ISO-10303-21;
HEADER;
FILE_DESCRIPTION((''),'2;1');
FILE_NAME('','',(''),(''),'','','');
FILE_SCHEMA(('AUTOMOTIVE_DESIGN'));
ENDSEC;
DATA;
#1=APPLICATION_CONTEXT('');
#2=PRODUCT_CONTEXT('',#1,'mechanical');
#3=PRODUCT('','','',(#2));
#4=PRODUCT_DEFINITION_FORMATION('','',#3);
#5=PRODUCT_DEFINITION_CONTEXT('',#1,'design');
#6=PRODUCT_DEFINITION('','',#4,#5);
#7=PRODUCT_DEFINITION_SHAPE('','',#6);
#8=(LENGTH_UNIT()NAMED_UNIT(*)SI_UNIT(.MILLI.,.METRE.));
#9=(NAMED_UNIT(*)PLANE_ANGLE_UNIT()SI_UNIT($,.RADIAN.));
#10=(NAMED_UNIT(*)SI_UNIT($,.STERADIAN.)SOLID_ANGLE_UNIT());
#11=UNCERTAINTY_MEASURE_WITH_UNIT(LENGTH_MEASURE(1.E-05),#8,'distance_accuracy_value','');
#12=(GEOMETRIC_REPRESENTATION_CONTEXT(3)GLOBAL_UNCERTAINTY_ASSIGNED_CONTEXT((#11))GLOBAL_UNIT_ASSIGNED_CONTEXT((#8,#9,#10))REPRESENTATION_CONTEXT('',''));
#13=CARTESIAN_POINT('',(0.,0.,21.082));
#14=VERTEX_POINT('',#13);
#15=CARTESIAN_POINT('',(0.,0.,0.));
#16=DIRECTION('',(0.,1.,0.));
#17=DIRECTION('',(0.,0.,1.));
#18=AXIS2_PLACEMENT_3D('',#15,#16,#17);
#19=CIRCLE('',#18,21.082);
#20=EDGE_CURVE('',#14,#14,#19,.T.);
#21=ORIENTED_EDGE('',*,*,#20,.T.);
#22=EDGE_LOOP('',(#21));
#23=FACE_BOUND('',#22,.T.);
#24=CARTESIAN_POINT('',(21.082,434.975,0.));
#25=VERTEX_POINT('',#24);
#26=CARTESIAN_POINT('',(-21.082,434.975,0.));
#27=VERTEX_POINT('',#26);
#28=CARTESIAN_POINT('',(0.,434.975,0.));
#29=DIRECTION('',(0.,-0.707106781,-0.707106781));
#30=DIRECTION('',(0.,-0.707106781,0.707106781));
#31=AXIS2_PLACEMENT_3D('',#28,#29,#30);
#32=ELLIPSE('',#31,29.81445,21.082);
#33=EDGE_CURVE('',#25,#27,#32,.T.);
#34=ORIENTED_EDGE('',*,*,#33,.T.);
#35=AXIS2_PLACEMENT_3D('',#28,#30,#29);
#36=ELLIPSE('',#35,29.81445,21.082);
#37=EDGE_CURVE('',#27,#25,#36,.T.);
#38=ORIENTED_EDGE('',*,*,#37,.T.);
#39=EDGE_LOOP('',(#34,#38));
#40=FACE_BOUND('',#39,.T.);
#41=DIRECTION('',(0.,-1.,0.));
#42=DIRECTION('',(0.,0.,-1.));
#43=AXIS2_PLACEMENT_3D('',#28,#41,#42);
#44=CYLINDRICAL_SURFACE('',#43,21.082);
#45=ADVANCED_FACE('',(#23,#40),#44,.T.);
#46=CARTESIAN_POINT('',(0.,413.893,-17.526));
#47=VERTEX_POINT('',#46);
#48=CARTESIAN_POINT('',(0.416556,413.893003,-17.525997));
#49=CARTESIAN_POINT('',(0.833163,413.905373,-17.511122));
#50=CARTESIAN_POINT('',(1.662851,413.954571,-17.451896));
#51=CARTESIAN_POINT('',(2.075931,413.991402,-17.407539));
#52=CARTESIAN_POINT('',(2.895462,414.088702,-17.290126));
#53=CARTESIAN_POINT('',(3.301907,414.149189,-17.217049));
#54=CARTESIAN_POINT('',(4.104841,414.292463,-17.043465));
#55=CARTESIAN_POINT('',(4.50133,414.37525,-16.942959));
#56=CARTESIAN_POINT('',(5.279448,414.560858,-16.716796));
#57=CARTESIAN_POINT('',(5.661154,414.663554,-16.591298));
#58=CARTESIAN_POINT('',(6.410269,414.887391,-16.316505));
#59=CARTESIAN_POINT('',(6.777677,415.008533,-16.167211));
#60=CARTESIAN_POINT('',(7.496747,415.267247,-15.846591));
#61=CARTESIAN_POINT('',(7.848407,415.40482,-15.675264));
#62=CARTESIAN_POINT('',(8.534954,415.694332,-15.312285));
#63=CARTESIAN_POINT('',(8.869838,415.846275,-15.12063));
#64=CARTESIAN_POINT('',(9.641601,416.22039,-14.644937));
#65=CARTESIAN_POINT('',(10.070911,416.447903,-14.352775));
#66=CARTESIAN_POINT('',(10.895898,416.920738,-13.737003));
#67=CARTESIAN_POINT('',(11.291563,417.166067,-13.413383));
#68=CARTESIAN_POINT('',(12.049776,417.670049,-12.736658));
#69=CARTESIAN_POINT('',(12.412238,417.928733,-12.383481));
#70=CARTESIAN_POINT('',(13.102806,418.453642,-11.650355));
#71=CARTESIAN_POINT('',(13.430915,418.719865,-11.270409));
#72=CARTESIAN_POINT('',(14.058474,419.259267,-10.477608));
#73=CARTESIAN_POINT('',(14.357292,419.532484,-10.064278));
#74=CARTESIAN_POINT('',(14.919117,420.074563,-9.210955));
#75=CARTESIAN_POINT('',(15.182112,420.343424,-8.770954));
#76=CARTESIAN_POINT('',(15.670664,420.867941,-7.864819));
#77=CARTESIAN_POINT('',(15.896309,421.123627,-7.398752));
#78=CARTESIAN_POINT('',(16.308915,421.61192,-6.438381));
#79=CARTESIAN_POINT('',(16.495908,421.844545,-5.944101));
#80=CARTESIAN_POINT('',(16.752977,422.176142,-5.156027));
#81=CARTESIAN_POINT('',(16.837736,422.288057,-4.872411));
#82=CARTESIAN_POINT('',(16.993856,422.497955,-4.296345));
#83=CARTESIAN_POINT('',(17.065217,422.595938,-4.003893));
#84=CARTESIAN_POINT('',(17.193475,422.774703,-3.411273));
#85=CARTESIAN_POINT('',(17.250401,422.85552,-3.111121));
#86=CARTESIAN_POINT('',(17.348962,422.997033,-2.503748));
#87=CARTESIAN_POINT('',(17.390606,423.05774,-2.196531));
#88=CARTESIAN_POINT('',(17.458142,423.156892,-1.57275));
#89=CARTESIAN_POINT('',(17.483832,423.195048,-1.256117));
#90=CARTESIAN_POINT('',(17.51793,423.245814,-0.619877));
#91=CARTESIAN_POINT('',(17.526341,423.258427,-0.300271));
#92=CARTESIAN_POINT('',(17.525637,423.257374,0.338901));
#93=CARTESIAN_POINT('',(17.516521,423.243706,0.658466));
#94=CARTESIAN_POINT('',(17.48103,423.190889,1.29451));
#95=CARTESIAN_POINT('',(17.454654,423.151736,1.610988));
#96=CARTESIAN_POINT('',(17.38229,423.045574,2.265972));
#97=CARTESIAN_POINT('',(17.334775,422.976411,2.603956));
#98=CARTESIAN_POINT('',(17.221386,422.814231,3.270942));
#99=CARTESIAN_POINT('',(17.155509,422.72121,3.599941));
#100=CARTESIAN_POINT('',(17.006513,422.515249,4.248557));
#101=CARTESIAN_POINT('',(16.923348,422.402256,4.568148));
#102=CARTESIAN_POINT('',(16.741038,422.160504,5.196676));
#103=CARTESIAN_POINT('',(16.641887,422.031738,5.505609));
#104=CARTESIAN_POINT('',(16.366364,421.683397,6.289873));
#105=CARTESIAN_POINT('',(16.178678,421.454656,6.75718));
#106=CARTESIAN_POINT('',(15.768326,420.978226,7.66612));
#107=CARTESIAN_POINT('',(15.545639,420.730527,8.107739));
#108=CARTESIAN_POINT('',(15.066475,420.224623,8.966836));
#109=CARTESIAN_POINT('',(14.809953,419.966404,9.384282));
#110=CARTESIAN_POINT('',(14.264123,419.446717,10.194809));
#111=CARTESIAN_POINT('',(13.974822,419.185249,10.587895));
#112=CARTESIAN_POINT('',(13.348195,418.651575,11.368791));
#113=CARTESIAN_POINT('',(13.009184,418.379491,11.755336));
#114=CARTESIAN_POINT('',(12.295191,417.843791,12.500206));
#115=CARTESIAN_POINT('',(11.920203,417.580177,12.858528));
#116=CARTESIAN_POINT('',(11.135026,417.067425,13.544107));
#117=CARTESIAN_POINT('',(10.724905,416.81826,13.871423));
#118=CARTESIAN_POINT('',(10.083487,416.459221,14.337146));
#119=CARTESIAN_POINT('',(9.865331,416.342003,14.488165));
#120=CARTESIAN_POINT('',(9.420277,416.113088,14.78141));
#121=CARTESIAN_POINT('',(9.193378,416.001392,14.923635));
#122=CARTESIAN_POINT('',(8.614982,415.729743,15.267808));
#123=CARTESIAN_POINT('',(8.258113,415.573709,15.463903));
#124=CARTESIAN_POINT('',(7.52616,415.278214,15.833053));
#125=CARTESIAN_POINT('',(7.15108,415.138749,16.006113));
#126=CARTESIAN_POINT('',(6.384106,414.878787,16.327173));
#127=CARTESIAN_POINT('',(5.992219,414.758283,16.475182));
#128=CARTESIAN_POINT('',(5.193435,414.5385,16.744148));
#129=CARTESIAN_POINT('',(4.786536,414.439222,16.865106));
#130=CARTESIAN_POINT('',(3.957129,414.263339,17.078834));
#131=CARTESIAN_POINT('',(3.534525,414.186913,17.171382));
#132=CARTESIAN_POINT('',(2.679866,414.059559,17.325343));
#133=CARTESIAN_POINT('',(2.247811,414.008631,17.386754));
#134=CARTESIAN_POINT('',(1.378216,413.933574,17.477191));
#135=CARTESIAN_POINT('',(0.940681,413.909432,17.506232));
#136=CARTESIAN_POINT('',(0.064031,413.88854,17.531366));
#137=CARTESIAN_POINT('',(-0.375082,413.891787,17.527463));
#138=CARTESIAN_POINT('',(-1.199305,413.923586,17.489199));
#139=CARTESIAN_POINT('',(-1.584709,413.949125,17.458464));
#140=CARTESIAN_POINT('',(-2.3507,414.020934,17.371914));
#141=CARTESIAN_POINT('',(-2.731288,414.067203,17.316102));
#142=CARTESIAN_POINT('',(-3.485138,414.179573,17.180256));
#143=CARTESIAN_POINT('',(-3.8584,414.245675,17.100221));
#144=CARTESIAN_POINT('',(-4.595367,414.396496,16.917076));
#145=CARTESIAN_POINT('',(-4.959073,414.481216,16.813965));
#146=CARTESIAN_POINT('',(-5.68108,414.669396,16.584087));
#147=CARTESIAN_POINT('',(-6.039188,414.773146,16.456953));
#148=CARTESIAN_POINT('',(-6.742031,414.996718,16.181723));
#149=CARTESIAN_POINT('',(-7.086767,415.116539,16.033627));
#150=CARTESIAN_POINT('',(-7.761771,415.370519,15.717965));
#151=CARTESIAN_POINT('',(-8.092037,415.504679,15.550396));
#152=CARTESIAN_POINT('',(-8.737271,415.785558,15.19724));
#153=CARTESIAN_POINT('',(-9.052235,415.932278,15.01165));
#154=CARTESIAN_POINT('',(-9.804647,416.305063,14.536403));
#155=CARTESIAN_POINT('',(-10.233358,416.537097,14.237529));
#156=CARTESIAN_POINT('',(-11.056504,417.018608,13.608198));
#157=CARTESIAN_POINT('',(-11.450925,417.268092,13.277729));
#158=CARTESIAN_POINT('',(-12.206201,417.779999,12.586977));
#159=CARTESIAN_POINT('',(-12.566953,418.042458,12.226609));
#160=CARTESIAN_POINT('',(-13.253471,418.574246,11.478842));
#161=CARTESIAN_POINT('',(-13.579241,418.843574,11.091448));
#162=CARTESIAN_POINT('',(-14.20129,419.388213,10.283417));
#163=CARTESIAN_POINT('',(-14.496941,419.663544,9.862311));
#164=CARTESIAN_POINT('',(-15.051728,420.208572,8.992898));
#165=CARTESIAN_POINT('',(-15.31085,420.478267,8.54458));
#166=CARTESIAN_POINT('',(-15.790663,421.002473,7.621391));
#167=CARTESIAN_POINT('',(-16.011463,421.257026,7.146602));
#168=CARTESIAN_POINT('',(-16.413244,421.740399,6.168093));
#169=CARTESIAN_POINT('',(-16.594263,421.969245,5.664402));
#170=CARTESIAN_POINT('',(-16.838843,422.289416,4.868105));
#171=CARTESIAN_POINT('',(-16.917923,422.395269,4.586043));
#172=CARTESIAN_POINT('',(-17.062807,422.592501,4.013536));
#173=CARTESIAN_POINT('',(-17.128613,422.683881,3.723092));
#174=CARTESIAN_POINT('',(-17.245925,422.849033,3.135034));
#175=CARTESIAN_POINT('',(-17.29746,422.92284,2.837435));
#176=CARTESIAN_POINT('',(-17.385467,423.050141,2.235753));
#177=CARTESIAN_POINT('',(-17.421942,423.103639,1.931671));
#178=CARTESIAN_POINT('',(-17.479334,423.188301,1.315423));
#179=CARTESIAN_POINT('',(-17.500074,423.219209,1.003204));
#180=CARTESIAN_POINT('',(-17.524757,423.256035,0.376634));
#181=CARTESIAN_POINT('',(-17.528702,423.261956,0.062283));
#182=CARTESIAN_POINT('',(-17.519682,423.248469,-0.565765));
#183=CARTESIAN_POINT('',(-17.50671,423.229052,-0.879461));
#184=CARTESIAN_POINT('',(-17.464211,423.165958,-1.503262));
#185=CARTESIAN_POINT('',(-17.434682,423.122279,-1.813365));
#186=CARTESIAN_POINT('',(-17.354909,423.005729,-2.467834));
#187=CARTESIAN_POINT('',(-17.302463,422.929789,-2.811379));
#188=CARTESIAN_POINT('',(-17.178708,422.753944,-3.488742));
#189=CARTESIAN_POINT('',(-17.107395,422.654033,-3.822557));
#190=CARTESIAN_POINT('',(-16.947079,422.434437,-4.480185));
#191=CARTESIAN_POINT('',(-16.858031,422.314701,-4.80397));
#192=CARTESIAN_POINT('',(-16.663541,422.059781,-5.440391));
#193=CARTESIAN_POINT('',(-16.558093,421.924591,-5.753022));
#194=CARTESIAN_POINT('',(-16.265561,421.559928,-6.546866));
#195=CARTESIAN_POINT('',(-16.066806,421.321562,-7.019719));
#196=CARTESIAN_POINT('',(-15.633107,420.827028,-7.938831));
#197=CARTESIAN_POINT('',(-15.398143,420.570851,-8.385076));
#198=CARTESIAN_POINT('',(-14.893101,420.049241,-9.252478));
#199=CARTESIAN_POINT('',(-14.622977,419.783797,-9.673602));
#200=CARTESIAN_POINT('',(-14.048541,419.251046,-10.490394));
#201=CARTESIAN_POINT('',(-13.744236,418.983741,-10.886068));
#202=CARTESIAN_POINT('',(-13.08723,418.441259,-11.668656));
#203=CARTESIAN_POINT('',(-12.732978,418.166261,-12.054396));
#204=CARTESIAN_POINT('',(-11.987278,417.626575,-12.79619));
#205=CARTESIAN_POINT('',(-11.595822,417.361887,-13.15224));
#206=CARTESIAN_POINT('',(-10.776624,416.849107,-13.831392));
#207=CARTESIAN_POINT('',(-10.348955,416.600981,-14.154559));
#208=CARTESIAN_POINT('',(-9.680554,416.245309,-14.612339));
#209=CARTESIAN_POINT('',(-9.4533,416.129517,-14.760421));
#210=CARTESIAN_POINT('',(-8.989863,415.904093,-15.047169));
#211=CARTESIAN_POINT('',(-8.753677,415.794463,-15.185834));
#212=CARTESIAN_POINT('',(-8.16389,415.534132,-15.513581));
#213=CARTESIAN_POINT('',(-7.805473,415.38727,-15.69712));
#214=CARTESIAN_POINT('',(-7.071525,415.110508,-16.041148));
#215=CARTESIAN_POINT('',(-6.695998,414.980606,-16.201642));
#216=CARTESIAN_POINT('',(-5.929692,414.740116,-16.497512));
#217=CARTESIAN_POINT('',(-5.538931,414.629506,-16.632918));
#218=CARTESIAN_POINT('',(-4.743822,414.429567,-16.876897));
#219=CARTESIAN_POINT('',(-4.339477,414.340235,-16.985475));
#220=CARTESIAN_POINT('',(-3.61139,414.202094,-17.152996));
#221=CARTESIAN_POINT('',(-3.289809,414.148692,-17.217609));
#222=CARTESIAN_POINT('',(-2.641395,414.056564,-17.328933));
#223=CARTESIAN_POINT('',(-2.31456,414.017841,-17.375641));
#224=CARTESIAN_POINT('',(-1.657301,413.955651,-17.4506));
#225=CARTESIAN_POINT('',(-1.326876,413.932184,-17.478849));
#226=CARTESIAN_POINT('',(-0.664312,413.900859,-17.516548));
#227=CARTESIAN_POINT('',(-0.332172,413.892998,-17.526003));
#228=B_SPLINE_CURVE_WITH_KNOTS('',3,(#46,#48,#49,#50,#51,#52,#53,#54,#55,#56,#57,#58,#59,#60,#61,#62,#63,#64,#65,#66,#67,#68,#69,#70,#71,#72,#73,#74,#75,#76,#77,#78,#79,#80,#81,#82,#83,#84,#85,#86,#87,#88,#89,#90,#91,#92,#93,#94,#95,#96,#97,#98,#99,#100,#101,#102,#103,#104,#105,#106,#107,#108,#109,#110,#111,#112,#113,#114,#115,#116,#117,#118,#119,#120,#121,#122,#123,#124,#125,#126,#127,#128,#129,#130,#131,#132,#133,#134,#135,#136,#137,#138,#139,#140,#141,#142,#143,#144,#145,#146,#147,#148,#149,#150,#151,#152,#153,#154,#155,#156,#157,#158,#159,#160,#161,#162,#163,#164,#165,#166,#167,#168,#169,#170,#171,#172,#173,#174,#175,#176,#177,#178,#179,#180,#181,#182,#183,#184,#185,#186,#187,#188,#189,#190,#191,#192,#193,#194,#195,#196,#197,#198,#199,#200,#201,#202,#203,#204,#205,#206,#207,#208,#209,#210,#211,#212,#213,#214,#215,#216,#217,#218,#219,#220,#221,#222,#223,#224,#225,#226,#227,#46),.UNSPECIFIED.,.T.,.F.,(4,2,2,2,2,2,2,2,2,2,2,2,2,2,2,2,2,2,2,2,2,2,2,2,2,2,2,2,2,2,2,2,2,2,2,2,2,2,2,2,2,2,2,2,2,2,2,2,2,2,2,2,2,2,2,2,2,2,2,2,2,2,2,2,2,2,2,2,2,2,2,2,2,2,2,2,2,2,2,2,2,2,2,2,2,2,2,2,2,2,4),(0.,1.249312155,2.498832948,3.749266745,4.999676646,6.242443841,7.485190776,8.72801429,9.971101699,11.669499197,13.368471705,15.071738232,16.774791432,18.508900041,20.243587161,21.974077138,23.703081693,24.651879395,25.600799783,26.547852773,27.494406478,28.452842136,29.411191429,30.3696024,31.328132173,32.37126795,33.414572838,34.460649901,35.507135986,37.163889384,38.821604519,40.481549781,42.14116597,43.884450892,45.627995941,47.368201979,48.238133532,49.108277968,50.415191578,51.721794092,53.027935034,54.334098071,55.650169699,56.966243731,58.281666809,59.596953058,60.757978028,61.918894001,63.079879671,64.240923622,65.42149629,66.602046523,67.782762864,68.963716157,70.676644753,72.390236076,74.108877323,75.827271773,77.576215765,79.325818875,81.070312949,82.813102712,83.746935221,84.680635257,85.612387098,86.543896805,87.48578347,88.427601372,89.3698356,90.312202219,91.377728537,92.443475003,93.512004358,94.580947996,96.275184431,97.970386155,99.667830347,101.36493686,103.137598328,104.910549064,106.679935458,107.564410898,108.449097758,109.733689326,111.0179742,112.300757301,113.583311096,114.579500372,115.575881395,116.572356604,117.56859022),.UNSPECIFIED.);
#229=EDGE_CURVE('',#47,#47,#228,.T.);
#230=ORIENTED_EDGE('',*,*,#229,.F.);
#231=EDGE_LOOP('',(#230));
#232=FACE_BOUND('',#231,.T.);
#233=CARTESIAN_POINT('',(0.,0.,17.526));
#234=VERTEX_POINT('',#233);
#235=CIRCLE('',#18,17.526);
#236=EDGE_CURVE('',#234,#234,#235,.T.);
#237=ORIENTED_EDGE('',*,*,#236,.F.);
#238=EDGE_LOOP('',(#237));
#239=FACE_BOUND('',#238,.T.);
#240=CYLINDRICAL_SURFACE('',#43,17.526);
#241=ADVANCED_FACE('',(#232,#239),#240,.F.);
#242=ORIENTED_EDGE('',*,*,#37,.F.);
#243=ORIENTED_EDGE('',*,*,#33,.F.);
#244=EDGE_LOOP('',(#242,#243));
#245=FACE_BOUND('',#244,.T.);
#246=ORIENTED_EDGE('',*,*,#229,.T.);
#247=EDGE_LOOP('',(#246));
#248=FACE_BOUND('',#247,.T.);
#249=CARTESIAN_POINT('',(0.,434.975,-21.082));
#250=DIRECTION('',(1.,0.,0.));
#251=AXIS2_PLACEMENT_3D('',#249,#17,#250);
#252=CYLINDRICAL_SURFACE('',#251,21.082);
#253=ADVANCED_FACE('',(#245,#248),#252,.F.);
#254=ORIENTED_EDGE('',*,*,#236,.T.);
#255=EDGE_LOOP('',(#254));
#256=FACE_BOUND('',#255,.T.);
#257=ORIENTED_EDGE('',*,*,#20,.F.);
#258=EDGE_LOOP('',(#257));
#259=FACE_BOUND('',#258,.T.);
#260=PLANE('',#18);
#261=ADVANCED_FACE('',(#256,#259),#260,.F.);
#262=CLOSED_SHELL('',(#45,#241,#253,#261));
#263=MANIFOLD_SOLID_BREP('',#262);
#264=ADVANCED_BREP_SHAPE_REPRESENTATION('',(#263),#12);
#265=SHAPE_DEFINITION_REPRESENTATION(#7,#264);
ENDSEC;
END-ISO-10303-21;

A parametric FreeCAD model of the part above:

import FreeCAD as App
import Part
import Sketcher

V = App.Vector
Q = App.Units.Quantity

doc = App.newDocument("Part")
body = doc.addObject("PartDesign::Body", "Body")

# Sketch on XZ plane
sketch1 = doc.addObject("Sketcher::SketchObject", "Sketch")
body.addObject(sketch1)
sketch1.AttachmentSupport = (doc.XZ_Plane, [""])
sketch1.MapMode = "FlatFace"
sketch1.addGeometry(Part.Circle(V(0, 0, 0), V(0, 0, 1), 21.082), False)
sketch1.addGeometry(Part.Circle(V(0, 0, 0), V(0, 0, 1), 17.526), False)
sketch1.addConstraint(Sketcher.Constraint("Coincident", 0, 3, -1, 1))
sketch1.addConstraint(Sketcher.Constraint("Coincident", 1, 3, -1, 1))
sketch1.addConstraint(Sketcher.Constraint("Diameter", 0, Q("1.66 in")))
sketch1.addConstraint(Sketcher.Constraint("Diameter", 1, Q("1.38 in")))
pad1 = doc.addObject("PartDesign::Pad", "Pad")
body.addObject(pad1)
pad1.Profile = sketch1
pad1.Length = Q("17.125 in")
pad1.Reversed = True

# Sketch on XY plane
sketch2 = doc.addObject("Sketcher::SketchObject", "Sketch001")
body.addObject(sketch2)
sketch2.AttachmentSupport = (doc.XY_Plane, [""])
sketch2.MapMode = "FlatFace"
sketch2.addGeometry(Part.Circle(V(0, 434.975, 0), V(0, 0, 1), 21.082), False)
sketch2.addConstraint(Sketcher.Constraint("PointOnObject", 0, 3, -2))
sketch2.addConstraint(Sketcher.Constraint("Diameter", 0, Q("1.66 in")))
sketch2.addConstraint(Sketcher.Constraint("DistanceY", -1, 1, 0, 3, Q("17.125 in")))
pocket1 = doc.addObject("PartDesign::Pocket", "Pocket")
body.addObject(pocket1)
pocket1.Profile = sketch2
pocket1.Type = "ThroughAll"
pocket1.Midplane = True

doc.recompute()
